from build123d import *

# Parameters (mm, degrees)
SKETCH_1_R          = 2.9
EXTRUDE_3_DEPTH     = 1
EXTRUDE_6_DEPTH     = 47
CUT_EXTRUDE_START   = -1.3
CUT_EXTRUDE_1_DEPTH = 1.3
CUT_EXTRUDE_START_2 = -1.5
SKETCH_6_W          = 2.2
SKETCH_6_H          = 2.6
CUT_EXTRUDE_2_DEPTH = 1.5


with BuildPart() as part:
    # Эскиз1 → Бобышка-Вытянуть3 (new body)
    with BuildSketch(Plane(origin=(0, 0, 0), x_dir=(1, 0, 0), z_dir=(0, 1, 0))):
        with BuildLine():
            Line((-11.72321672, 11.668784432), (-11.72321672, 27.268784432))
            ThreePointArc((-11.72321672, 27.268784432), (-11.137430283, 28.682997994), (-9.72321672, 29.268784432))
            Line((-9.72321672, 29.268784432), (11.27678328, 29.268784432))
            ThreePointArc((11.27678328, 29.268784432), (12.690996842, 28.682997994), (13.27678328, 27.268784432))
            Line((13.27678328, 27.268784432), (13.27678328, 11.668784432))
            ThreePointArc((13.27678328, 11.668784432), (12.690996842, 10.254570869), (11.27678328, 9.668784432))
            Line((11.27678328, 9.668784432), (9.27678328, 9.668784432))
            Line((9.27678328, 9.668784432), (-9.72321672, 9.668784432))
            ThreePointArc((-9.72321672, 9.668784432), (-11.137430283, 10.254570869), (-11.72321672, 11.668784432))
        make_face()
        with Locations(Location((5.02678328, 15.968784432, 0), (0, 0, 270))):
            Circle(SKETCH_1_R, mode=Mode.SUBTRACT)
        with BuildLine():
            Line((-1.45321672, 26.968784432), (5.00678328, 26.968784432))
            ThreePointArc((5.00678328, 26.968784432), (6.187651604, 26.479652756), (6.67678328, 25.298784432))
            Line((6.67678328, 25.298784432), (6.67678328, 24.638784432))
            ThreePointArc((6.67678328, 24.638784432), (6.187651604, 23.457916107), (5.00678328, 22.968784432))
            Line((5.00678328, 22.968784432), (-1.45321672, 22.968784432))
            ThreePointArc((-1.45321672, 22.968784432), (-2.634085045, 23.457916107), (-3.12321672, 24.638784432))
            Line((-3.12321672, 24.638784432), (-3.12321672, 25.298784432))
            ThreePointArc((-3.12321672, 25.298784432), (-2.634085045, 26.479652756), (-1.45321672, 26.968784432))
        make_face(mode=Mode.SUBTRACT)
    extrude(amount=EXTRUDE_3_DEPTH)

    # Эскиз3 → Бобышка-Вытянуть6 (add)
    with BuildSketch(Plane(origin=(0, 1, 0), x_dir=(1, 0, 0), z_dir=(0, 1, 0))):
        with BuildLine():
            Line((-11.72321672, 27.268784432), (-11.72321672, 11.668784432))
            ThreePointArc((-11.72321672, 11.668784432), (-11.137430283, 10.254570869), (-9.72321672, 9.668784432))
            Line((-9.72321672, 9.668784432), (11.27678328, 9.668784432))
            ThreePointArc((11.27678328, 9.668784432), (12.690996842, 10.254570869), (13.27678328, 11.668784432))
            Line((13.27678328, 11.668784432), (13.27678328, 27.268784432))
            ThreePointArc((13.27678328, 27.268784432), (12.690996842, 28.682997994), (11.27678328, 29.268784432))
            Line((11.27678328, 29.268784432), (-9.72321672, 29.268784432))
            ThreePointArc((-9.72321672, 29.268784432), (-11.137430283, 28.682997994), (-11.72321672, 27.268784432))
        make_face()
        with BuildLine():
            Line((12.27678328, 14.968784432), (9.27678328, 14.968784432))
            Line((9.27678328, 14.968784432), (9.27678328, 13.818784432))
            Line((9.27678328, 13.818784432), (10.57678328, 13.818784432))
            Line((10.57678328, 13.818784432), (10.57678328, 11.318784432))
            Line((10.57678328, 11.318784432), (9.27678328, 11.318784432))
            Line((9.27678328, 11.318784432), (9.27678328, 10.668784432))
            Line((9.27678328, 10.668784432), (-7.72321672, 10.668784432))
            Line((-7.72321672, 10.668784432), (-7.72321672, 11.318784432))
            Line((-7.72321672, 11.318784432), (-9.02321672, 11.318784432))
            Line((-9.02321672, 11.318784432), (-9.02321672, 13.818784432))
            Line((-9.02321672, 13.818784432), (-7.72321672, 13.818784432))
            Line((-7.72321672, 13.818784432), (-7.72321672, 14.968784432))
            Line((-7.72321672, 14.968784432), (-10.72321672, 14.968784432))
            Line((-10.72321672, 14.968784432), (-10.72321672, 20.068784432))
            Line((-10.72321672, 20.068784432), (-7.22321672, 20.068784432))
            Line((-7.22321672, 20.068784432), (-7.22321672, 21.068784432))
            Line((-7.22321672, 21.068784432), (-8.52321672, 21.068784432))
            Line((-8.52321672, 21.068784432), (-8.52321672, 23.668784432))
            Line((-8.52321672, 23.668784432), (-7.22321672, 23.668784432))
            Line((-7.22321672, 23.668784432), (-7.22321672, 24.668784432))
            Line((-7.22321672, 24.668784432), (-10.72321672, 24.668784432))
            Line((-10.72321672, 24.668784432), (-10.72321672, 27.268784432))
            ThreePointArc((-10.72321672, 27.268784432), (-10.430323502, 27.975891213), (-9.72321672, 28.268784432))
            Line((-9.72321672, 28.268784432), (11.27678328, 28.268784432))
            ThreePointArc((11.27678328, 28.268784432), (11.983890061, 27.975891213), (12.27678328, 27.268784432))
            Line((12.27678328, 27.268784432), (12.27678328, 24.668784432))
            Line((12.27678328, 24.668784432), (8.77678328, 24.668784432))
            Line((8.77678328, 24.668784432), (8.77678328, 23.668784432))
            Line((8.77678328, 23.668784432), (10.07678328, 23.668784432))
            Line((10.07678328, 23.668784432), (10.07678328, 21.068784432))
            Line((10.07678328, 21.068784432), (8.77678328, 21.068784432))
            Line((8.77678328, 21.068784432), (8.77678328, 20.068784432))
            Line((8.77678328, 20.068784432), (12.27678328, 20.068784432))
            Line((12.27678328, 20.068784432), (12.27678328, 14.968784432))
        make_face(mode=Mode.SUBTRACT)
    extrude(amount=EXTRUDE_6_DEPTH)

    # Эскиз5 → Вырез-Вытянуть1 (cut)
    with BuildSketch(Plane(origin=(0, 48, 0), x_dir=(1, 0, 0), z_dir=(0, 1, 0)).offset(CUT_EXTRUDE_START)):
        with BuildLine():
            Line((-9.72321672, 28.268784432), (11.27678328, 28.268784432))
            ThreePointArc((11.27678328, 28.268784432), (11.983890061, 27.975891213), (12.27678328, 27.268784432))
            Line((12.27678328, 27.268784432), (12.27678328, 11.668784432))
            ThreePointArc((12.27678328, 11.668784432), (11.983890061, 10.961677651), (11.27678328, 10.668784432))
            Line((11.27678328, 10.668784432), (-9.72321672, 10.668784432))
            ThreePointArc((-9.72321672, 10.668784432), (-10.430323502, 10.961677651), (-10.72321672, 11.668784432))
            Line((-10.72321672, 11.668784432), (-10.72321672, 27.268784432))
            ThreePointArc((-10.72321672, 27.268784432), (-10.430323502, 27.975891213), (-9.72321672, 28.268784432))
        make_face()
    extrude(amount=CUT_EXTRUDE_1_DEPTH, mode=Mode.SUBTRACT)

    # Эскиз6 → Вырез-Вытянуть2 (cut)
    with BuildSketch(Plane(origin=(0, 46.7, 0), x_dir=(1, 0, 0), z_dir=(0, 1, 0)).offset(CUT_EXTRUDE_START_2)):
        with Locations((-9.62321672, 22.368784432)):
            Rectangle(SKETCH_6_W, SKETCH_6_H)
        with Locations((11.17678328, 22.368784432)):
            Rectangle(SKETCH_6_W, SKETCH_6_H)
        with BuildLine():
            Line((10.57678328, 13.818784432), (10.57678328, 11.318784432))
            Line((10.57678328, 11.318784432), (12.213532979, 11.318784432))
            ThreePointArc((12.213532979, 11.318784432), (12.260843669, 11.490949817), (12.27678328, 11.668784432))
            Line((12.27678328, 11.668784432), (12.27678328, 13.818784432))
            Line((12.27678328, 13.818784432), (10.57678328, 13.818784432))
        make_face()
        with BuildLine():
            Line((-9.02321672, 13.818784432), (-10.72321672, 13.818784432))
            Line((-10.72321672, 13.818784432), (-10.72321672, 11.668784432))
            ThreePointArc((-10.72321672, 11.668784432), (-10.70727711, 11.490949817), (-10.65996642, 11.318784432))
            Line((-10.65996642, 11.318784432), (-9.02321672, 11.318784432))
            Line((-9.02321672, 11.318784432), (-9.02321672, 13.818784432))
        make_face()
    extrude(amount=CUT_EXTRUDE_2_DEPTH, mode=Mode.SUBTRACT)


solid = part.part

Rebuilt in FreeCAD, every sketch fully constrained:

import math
import FreeCAD as App
import Part
import Sketcher

doc = App.newDocument("Part")
params = doc.addObject("Spreadsheet::Sheet", "Params")
for row, (alias, value) in enumerate([
    ("sketch1_radius", "2 mm"),
    ("sketch1_diameter", "5.8 mm"),
    ("sketch1_width", "21 mm"),
    ("sketch1_radius2", "1.67 mm"),
    ("sketch1_height", "15.6 mm"),
    ("pad1_length", "1 mm"),
    ("sketch2_radius", "2 mm"),
    ("sketch2_radius2", "1 mm"),
    ("sketch2_width", "21 mm"),
    ("sketch2_width2", "3 mm"),
    ("sketch2_height", "1 mm"),
    ("pad2_length", "47 mm"),
    ("sketch3_radius", "1 mm"),
    ("sketch3_width", "21 mm"),
    ("sketch3_height", "15.6 mm"),
    ("pocket1_length", "1.3 mm"),
    ("sketch4_radius", "1 mm"),
    ("sketch4_width", "2.2 mm"),
    ("sketch4_width2", "1.7 mm"),
    ("sketch4_height", "2.6 mm"),
    ("sketch4_height2", "2.5 mm"),
    ("pocket2_length", "1.5 mm"),
], start=1):
    params.set(f"A{row}", alias)
    params.set(f"B{row}", "=" + value)
    params.setAlias(f"B{row}", alias)

body = doc.addObject("PartDesign::Body", "Body")

sketch1 = doc.addObject("Sketcher::SketchObject", "Sketch")
body.addObject(sketch1)
sketch1.AttachmentSupport = (doc.XZ_Plane, [""])
sketch1.MapMode = "FlatFace"
sketch1.addGeometry([
    Part.LineSegment(App.Vector(-11.723217, -27.268784, 0), App.Vector(-11.723217, -11.668784, 0)),
    Part.ArcOfCircle(Part.Circle(App.Vector(-9.723217, -11.668784, 0), App.Vector(0, 0, 1), 2), math.radians(90), math.radians(180)),
    Part.LineSegment(App.Vector(-9.723217, -9.668784, 0), App.Vector(11.276783, -9.668784, 0)),
    Part.ArcOfCircle(Part.Circle(App.Vector(11.276783, -11.668784, 0), App.Vector(0, 0, 1), 2), math.radians(0), math.radians(90)),
    Part.LineSegment(App.Vector(13.276783, -11.668784, 0), App.Vector(13.276783, -27.268784, 0)),
    Part.ArcOfCircle(Part.Circle(App.Vector(11.276783, -27.268784, 0), App.Vector(0, 0, 1), 2), math.radians(-90), math.radians(0)),
    Part.LineSegment(App.Vector(11.276783, -29.268784, 0), App.Vector(-9.723217, -29.268784, 0)),
    Part.ArcOfCircle(Part.Circle(App.Vector(-9.723217, -27.268784, 0), App.Vector(0, 0, 1), 2), math.radians(180), math.radians(270)),
    Part.Circle(App.Vector(5.026783, -15.968784, 0), App.Vector(0, 0, 1), 2.9),
    Part.LineSegment(App.Vector(-1.453217, -26.968784, 0), App.Vector(5.006783, -26.968784, 0)),
    Part.ArcOfCircle(Part.Circle(App.Vector(5.006783, -25.298784, 0), App.Vector(0, 0, 1), 1.67), math.radians(-90), math.radians(0)),
    Part.LineSegment(App.Vector(6.676783, -25.298784, 0), App.Vector(6.676783, -24.638784, 0)),
    Part.ArcOfCircle(Part.Circle(App.Vector(5.006783, -24.638784, 0), App.Vector(0, 0, 1), 1.67), math.radians(0), math.radians(90)),
    Part.LineSegment(App.Vector(5.006783, -22.968784, 0), App.Vector(-1.453217, -22.968784, 0)),
    Part.ArcOfCircle(Part.Circle(App.Vector(-1.453217, -24.638784, 0), App.Vector(0, 0, 1), 1.67), math.radians(90), math.radians(180)),
    Part.LineSegment(App.Vector(-3.123217, -24.638784, 0), App.Vector(-3.123217, -25.298784, 0)),
    Part.ArcOfCircle(Part.Circle(App.Vector(-1.453217, -25.298784, 0), App.Vector(0, 0, 1), 1.67), math.radians(180), math.radians(270)),
], False)
sketch1.addConstraint([
    Sketcher.Constraint("Tangent", 0, 2, 1, 2),
    Sketcher.Constraint("Tangent", 1, 1, 2, 1),
    Sketcher.Constraint("Tangent", 2, 2, 3, 2),
    Sketcher.Constraint("Tangent", 3, 1, 4, 1),
    Sketcher.Constraint("Tangent", 4, 2, 5, 2),
    Sketcher.Constraint("Tangent", 5, 1, 6, 1),
    Sketcher.Constraint("Tangent", 6, 2, 7, 2),
    Sketcher.Constraint("Tangent", 7, 1, 0, 1),
    Sketcher.Constraint("Tangent", 9, 2, 10, 1),
    Sketcher.Constraint("Tangent", 10, 2, 11, 1),
    Sketcher.Constraint("Tangent", 11, 2, 12, 1),
    Sketcher.Constraint("Tangent", 12, 2, 13, 1),
    Sketcher.Constraint("Tangent", 13, 2, 14, 1),
    Sketcher.Constraint("Tangent", 14, 2, 15, 1),
    Sketcher.Constraint("Tangent", 15, 2, 16, 1),
    Sketcher.Constraint("Tangent", 16, 2, 9, 1),
    Sketcher.Constraint("Vertical", 0),
    Sketcher.Constraint("Horizontal", 2),
    Sketcher.Constraint("Vertical", 4),
    Sketcher.Constraint("Horizontal", 6),
    Sketcher.Constraint("Horizontal", 9),
    Sketcher.Constraint("Vertical", 11),
    Sketcher.Constraint("Horizontal", 13),
    Sketcher.Constraint("Vertical", 15),
    Sketcher.Constraint("Equal", 1, 3),
    Sketcher.Constraint("Equal", 3, 5),
    Sketcher.Constraint("Equal", 5, 7),
    Sketcher.Constraint("Equal", 10, 12),
    Sketcher.Constraint("Equal", 12, 14),
    Sketcher.Constraint("Equal", 14, 16),
    Sketcher.Constraint("Radius", 1, 2.0),
    Sketcher.Constraint("Diameter", 8, 5.8),
    Sketcher.Constraint("DistanceX", 2, 1, 2, 2, 21.0),
    Sketcher.Constraint("Radius", 10, 1.67),
    Sketcher.Constraint("DistanceY", 0, 1, 0, 2, 15.6),
    Sketcher.Constraint("DistanceY", 9, 2, 12, 2, 4.0),
    Sketcher.Constraint("DistanceX", 9, 1, 9, 2, 6.46),
    Sketcher.Constraint("DistanceY", 8, 3, 3, 3, 4.3),
    Sketcher.Constraint("DistanceY", 5, 3, 9, 2, 0.3),
    Sketcher.Constraint("DistanceX", 10, 2, 5, 3, 4.6),
    Sketcher.Constraint("DistanceX", 8, 3, 3, 3, 6.25),
    Sketcher.Constraint("DistanceX", 1, 3, -1, 1, 9.723217),
    Sketcher.Constraint("DistanceY", 1, 3, -1, 1, 11.668784),
])
sketch1.setExpression("Constraints[30]", "Params.sketch1_radius")
sketch1.setExpression("Constraints[31]", "Params.sketch1_diameter")
sketch1.setExpression("Constraints[32]", "Params.sketch1_width")
sketch1.setExpression("Constraints[33]", "Params.sketch1_radius2")
sketch1.setExpression("Constraints[34]", "Params.sketch1_height")
pad1 = doc.addObject("PartDesign::Pad", "Pad")
body.addObject(pad1)
pad1.Profile = sketch1
pad1.setExpression("Length", "Params.pad1_length")
pad1.Reversed = True

sketch2 = doc.addObject("Sketcher::SketchObject", "Sketch001")
body.addObject(sketch2)
sketch2.AttachmentSupport = (doc.XZ_Plane, [""])
sketch2.MapMode = "FlatFace"
sketch2.AttachmentOffset = App.Placement(App.Vector(0, 0, -1), App.Rotation())
sketch2.addGeometry([
    Part.LineSegment(App.Vector(-11.723217, -27.268784, 0), App.Vector(-11.723217, -11.668784, 0)),
    Part.ArcOfCircle(Part.Circle(App.Vector(-9.723217, -11.668784, 0), App.Vector(0, 0, 1), 2), math.radians(90), math.radians(180)),
    Part.LineSegment(App.Vector(-9.723217, -9.668784, 0), App.Vector(11.276783, -9.668784, 0)),
    Part.ArcOfCircle(Part.Circle(App.Vector(11.276783, -11.668784, 0), App.Vector(0, 0, 1), 2), math.radians(0), math.radians(90)),
    Part.LineSegment(App.Vector(13.276783, -11.668784, 0), App.Vector(13.276783, -27.268784, 0)),
    Part.ArcOfCircle(Part.Circle(App.Vector(11.276783, -27.268784, 0), App.Vector(0, 0, 1), 2), math.radians(-90), math.radians(0)),
    Part.LineSegment(App.Vector(11.276783, -29.268784, 0), App.Vector(-9.723217, -29.268784, 0)),
    Part.ArcOfCircle(Part.Circle(App.Vector(-9.723217, -27.268784, 0), App.Vector(0, 0, 1), 2), math.radians(180), math.radians(270)),
    Part.LineSegment(App.Vector(12.276783, -20.068784, 0), App.Vector(12.276783, -14.968784, 0)),
    Part.LineSegment(App.Vector(12.276783, -14.968784, 0), App.Vector(9.276783, -14.968784, 0)),
    Part.LineSegment(App.Vector(9.276783, -14.968784, 0), App.Vector(9.276783, -13.818784, 0)),
    Part.LineSegment(App.Vector(9.276783, -13.818784, 0), App.Vector(10.576783, -13.818784, 0)),
    Part.LineSegment(App.Vector(10.576783, -13.818784, 0), App.Vector(10.576783, -11.318784, 0)),
    Part.LineSegment(App.Vector(10.576783, -11.318784, 0), App.Vector(9.276783, -11.318784, 0)),
    Part.LineSegment(App.Vector(9.276783, -11.318784, 0), App.Vector(9.276783, -10.668784, 0)),
    Part.LineSegment(App.Vector(9.276783, -10.668784, 0), App.Vector(-7.723217, -10.668784, 0)),
    Part.LineSegment(App.Vector(-7.723217, -10.668784, 0), App.Vector(-7.723217, -11.318784, 0)),
    Part.LineSegment(App.Vector(-7.723217, -11.318784, 0), App.Vector(-9.023217, -11.318784, 0)),
    Part.LineSegment(App.Vector(-9.023217, -11.318784, 0), App.Vector(-9.023217, -13.818784, 0)),
    Part.LineSegment(App.Vector(-9.023217, -13.818784, 0), App.Vector(-7.723217, -13.818784, 0)),
    Part.LineSegment(App.Vector(-7.723217, -13.818784, 0), App.Vector(-7.723217, -14.968784, 0)),
    Part.LineSegment(App.Vector(-7.723217, -14.968784, 0), App.Vector(-10.723217, -14.968784, 0)),
    Part.LineSegment(App.Vector(-10.723217, -14.968784, 0), App.Vector(-10.723217, -20.068784, 0)),
    Part.LineSegment(App.Vector(-10.723217, -20.068784, 0), App.Vector(-7.223217, -20.068784, 0)),
    Part.LineSegment(App.Vector(-7.223217, -20.068784, 0), App.Vector(-7.223217, -21.068784, 0)),
    Part.LineSegment(App.Vector(-7.223217, -21.068784, 0), App.Vector(-8.523217, -21.068784, 0)),
    Part.LineSegment(App.Vector(-8.523217, -21.068784, 0), App.Vector(-8.523217, -23.668784, 0)),
    Part.LineSegment(App.Vector(-8.523217, -23.668784, 0), App.Vector(-7.223217, -23.668784, 0)),
    Part.LineSegment(App.Vector(-7.223217, -23.668784, 0), App.Vector(-7.223217, -24.668784, 0)),
    Part.LineSegment(App.Vector(-7.223217, -24.668784, 0), App.Vector(-10.723217, -24.668784, 0)),
    Part.LineSegment(App.Vector(-10.723217, -24.668784, 0), App.Vector(-10.723217, -27.268784, 0)),
    Part.ArcOfCircle(Part.Circle(App.Vector(-9.723217, -27.268784, 0), App.Vector(0, 0, 1), 1), math.radians(180), math.radians(270)),
    Part.LineSegment(App.Vector(-9.723217, -28.268784, 0), App.Vector(11.276783, -28.268784, 0)),
    Part.ArcOfCircle(Part.Circle(App.Vector(11.276783, -27.268784, 0), App.Vector(0, 0, 1), 1), math.radians(-90), math.radians(0)),
    Part.LineSegment(App.Vector(12.276783, -27.268784, 0), App.Vector(12.276783, -24.668784, 0)),
    Part.LineSegment(App.Vector(12.276783, -24.668784, 0), App.Vector(8.776783, -24.668784, 0)),
    Part.LineSegment(App.Vector(8.776783, -24.668784, 0), App.Vector(8.776783, -23.668784, 0)),
    Part.LineSegment(App.Vector(8.776783, -23.668784, 0), App.Vector(10.076783, -23.668784, 0)),
    Part.LineSegment(App.Vector(10.076783, -23.668784, 0), App.Vector(10.076783, -21.068784, 0)),
    Part.LineSegment(App.Vector(10.076783, -21.068784, 0), App.Vector(8.776783, -21.068784, 0)),
    Part.LineSegment(App.Vector(8.776783, -21.068784, 0), App.Vector(8.776783, -20.068784, 0)),
    Part.LineSegment(App.Vector(8.776783, -20.068784, 0), App.Vector(12.276783, -20.068784, 0)),
], False)
sketch2.addConstraint([
    Sketcher.Constraint("Tangent", 0, 2, 1, 2),
    Sketcher.Constraint("Tangent", 1, 1, 2, 1),
    Sketcher.Constraint("Tangent", 2, 2, 3, 2),
    Sketcher.Constraint("Tangent", 3, 1, 4, 1),
    Sketcher.Constraint("Tangent", 4, 2, 5, 2),
    Sketcher.Constraint("Tangent", 5, 1, 6, 1),
    Sketcher.Constraint("Tangent", 6, 2, 7, 2),
    Sketcher.Constraint("Tangent", 7, 1, 0, 1),
    Sketcher.Constraint("Coincident", 8, 2, 9, 1),
    Sketcher.Constraint("Coincident", 9, 2, 10, 1),
    Sketcher.Constraint("Coincident", 10, 2, 11, 1),
    Sketcher.Constraint("Coincident", 11, 2, 12, 1),
    Sketcher.Constraint("Coincident", 12, 2, 13, 1),
    Sketcher.Constraint("Coincident", 13, 2, 14, 1),
    Sketcher.Constraint("Coincident", 14, 2, 15, 1),
    Sketcher.Constraint("Coincident", 15, 2, 16, 1),
    Sketcher.Constraint("Coincident", 16, 2, 17, 1),
    Sketcher.Constraint("Coincident", 17, 2, 18, 1),
    Sketcher.Constraint("Coincident", 18, 2, 19, 1),
    Sketcher.Constraint("Coincident", 19, 2, 20, 1),
    Sketcher.Constraint("Coincident", 20, 2, 21, 1),
    Sketcher.Constraint("Coincident", 21, 2, 22, 1),
    Sketcher.Constraint("Coincident", 22, 2, 23, 1),
    Sketcher.Constraint("Coincident", 23, 2, 24, 1),
    Sketcher.Constraint("Coincident", 24, 2, 25, 1),
    Sketcher.Constraint("Coincident", 25, 2, 26, 1),
    Sketcher.Constraint("Coincident", 26, 2, 27, 1),
    Sketcher.Constraint("Coincident", 27, 2, 28, 1),
    Sketcher.Constraint("Coincident", 28, 2, 29, 1),
    Sketcher.Constraint("Coincident", 29, 2, 30, 1),
    Sketcher.Constraint("Tangent", 30, 2, 31, 1),
    Sketcher.Constraint("Tangent", 31, 2, 32, 1),
    Sketcher.Constraint("Tangent", 32, 2, 33, 1),
    Sketcher.Constraint("Tangent", 33, 2, 34, 1),
    Sketcher.Constraint("Coincident", 34, 2, 35, 1),
    Sketcher.Constraint("Coincident", 35, 2, 36, 1),
    Sketcher.Constraint("Coincident", 36, 2, 37, 1),
    Sketcher.Constraint("Coincident", 37, 2, 38, 1),
    Sketcher.Constraint("Coincident", 38, 2, 39, 1),
    Sketcher.Constraint("Coincident", 39, 2, 40, 1),
    Sketcher.Constraint("Coincident", 40, 2, 41, 1),
    Sketcher.Constraint("Coincident", 41, 2, 8, 1),
    Sketcher.Constraint("Vertical", 0),
    Sketcher.Constraint("Horizontal", 2),
    Sketcher.Constraint("Vertical", 4),
    Sketcher.Constraint("Horizontal", 6),
    Sketcher.Constraint("Vertical", 8),
    Sketcher.Constraint("Horizontal", 9),
    Sketcher.Constraint("Vertical", 10),
    Sketcher.Constraint("Horizontal", 11),
    Sketcher.Constraint("Vertical", 12),
    Sketcher.Constraint("Horizontal", 13),
    Sketcher.Constraint("Vertical", 14),
    Sketcher.Constraint("Horizontal", 15),
    Sketcher.Constraint("Vertical", 16),
    Sketcher.Constraint("Horizontal", 17),
    Sketcher.Constraint("Vertical", 18),
    Sketcher.Constraint("Horizontal", 19),
    Sketcher.Constraint("Vertical", 20),
    Sketcher.Constraint("Horizontal", 21),
    Sketcher.Constraint("Vertical", 22),
    Sketcher.Constraint("Horizontal", 23),
    Sketcher.Constraint("Vertical", 24),
    Sketcher.Constraint("Horizontal", 25),
    Sketcher.Constraint("Vertical", 26),
    Sketcher.Constraint("Horizontal", 27),
    Sketcher.Constraint("Vertical", 28),
    Sketcher.Constraint("Horizontal", 29),
    Sketcher.Constraint("Vertical", 30),
    Sketcher.Constraint("Horizontal", 32),
    Sketcher.Constraint("Vertical", 34),
    Sketcher.Constraint("Horizontal", 35),
    Sketcher.Constraint("Vertical", 36),
    Sketcher.Constraint("Horizontal", 37),
    Sketcher.Constraint("Vertical", 38),
    Sketcher.Constraint("Horizontal", 39),
    Sketcher.Constraint("Vertical", 40),
    Sketcher.Constraint("Horizontal", 41),
    Sketcher.Constraint("Coincident", 31, 3, 7, 3),
    Sketcher.Constraint("Coincident", 33, 3, 5, 3),
    Sketcher.Constraint("Equal", 1, 3),
    Sketcher.Constraint("Equal", 3, 5),
    Sketcher.Constraint("Equal", 5, 7),
    Sketcher.Constraint("Horizontal", 13, 2, 16, 2),
    Sketcher.Constraint("Horizontal", 11, 2, 18, 2),
    Sketcher.Constraint("Horizontal", 9, 2, 20, 2),
    Sketcher.Constraint("Horizontal", 29, 2, 34, 2),
    Sketcher.Constraint("Horizontal", 27, 2, 36, 2),
    Sketcher.Constraint("Horizontal", 25, 2, 38, 2),
    Sketcher.Constraint("Horizontal", 23, 2, 40, 2),
    Sketcher.Constraint("Vertical", 10, 2, 13, 2),
    Sketcher.Constraint("Vertical", 16, 2, 19, 2),
    Sketcher.Constraint("Vertical", 24, 2, 27, 2),
    Sketcher.Constraint("Vertical", 22, 2, 29, 2),
    Sketcher.Constraint("Vertical", 8, 2, 33, 2),
    Sketcher.Constraint("Vertical", 36, 2, 39, 2),
    Sketcher.Constraint("Equal", 13, 17),
    Sketcher.Constraint("Equal", 9, 21),
    Sketcher.Constraint("Equal", 19, 25),
    Sketcher.Constraint("Equal", 29, 35),
    Sketcher.Constraint("Equal", 27, 37),
    Sketcher.Constraint("Equal", 24, 28),
    Sketcher.Constraint("Equal", 26, 30),
    Sketcher.Constraint("Radius", 1, 2.0),
    Sketcher.Constraint("Radius", 31, 1.0),
    Sketcher.Constraint("DistanceX", 2, 1, 2, 2, 21.0),
    Sketcher.Constraint("DistanceX", 9, 2, 9, 1, 3.0),
    Sketcher.Constraint("DistanceY", 24, 2, 24, 1, 1.0),
    Sketcher.Constraint("DistanceX", 11, 1, 11, 2, 1.3),
    Sketcher.Constraint("DistanceX", 23, 1, 23, 2, 3.5),
    Sketcher.Constraint("DistanceY", 0, 1, 0, 2, 15.6),
    Sketcher.Constraint("DistanceY", 8, 1, 8, 2, 5.1),
    Sketcher.Constraint("DistanceY", 12, 1, 12, 2, 2.5),
    Sketcher.Constraint("DistanceY", 26, 2, 26, 1, 2.6),
    Sketcher.Constraint("DistanceY", 3, 3, 14, 2, 1.0),
    Sketcher.Constraint("DistanceY", 10, 1, 10, 2, 1.15),
    Sketcher.Constraint("DistanceX", 1, 3, -1, 1, 9.723217),
    Sketcher.Constraint("DistanceY", 1, 3, -1, 1, 11.668784),
])
sketch2.setExpression("Constraints[103]", "Params.sketch2_radius")
sketch2.setExpression("Constraints[104]", "Params.sketch2_radius2")
sketch2.setExpression("Constraints[105]", "Params.sketch2_width")
sketch2.setExpression("Constraints[106]", "Params.sketch2_width2")
sketch2.setExpression("Constraints[107]", "Params.sketch2_height")
pad2 = doc.addObject("PartDesign::Pad", "Pad001")
body.addObject(pad2)
pad2.Profile = sketch2
pad2.setExpression("Length", "Params.pad2_length")
pad2.Reversed = True

sketch3 = doc.addObject("Sketcher::SketchObject", "Sketch002")
body.addObject(sketch3)
sketch3.AttachmentSupport = (doc.XZ_Plane, [""])
sketch3.MapMode = "FlatFace"
sketch3.AttachmentOffset = App.Placement(App.Vector(0, 0, -46.7), App.Rotation())
sketch3.addGeometry([
    Part.LineSegment(App.Vector(11.276783, -28.268784, 0), App.Vector(-9.723217, -28.268784, 0)),
    Part.ArcOfCircle(Part.Circle(App.Vector(-9.723217, -27.268784, 0), App.Vector(0, 0, 1), 1), math.radians(180), math.radians(270)),
    Part.LineSegment(App.Vector(-10.723217, -27.268784, 0), App.Vector(-10.723217, -11.668784, 0)),
    Part.ArcOfCircle(Part.Circle(App.Vector(-9.723217, -11.668784, 0), App.Vector(0, 0, 1), 1), math.radians(90), math.radians(180)),
    Part.LineSegment(App.Vector(-9.723217, -10.668784, 0), App.Vector(11.276783, -10.668784, 0)),
    Part.ArcOfCircle(Part.Circle(App.Vector(11.276783, -11.668784, 0), App.Vector(0, 0, 1), 1), math.radians(0), math.radians(90)),
    Part.LineSegment(App.Vector(12.276783, -11.668784, 0), App.Vector(12.276783, -27.268784, 0)),
    Part.ArcOfCircle(Part.Circle(App.Vector(11.276783, -27.268784, 0), App.Vector(0, 0, 1), 1), math.radians(-90), math.radians(0)),
], False)
sketch3.addConstraint([
    Sketcher.Constraint("Tangent", 0, 2, 1, 2),
    Sketcher.Constraint("Tangent", 1, 1, 2, 1),
    Sketcher.Constraint("Tangent", 2, 2, 3, 2),
    Sketcher.Constraint("Tangent", 3, 1, 4, 1),
    Sketcher.Constraint("Tangent", 4, 2, 5, 2),
    Sketcher.Constraint("Tangent", 5, 1, 6, 1),
    Sketcher.Constraint("Tangent", 6, 2, 7, 2),
    Sketcher.Constraint("Tangent", 7, 1, 0, 1),
    Sketcher.Constraint("Horizontal", 0),
    Sketcher.Constraint("Vertical", 2),
    Sketcher.Constraint("Horizontal", 4),
    Sketcher.Constraint("Vertical", 6),
    Sketcher.Constraint("Equal", 1, 3),
    Sketcher.Constraint("Equal", 3, 5),
    Sketcher.Constraint("Equal", 5, 7),
    Sketcher.Constraint("Radius", 1, 1.0),
    Sketcher.Constraint("DistanceX", 0, 2, 0, 1, 21.0),
    Sketcher.Constraint("DistanceY", 2, 1, 2, 2, 15.6),
    Sketcher.Constraint("DistanceX", 1, 3, -1, 1, 9.723217),
    Sketcher.Constraint("DistanceY", 1, 3, -1, 1, 27.268784),
])
sketch3.setExpression("Constraints[15]", "Params.sketch3_radius")
sketch3.setExpression("Constraints[16]", "Params.sketch3_width")
sketch3.setExpression("Constraints[17]", "Params.sketch3_height")
pocket1 = doc.addObject("PartDesign::Pocket", "Pocket")
body.addObject(pocket1)
pocket1.Profile = sketch3
pocket1.setExpression("Length", "Params.pocket1_length")

sketch4 = doc.addObject("Sketcher::SketchObject", "Sketch003")
body.addObject(sketch4)
sketch4.AttachmentSupport = (doc.XZ_Plane, [""])
sketch4.MapMode = "FlatFace"
sketch4.AttachmentOffset = App.Placement(App.Vector(0, 0, -45.2), App.Rotation())
sketch4.addGeometry([
    Part.LineSegment(App.Vector(-10.723217, -23.668784, 0), App.Vector(-10.723217, -21.068784, 0)),
    Part.LineSegment(App.Vector(-10.723217, -21.068784, 0), App.Vector(-8.523217, -21.068784, 0)),
    Part.LineSegment(App.Vector(-8.523217, -21.068784, 0), App.Vector(-8.523217, -23.668784, 0)),
    Part.LineSegment(App.Vector(-8.523217, -23.668784, 0), App.Vector(-10.723217, -23.668784, 0)),
    Part.LineSegment(App.Vector(10.076783, -23.668784, 0), App.Vector(10.076783, -21.068784, 0)),
    Part.LineSegment(App.Vector(10.076783, -21.068784, 0), App.Vector(12.276783, -21.068784, 0)),
    Part.LineSegment(App.Vector(12.276783, -21.068784, 0), App.Vector(12.276783, -23.668784, 0)),
    Part.LineSegment(App.Vector(12.276783, -23.668784, 0), App.Vector(10.076783, -23.668784, 0)),
    Part.LineSegment(App.Vector(10.576783, -13.818784, 0), App.Vector(10.576783, -11.318784, 0)),
    Part.LineSegment(App.Vector(10.576783, -11.318784, 0), App.Vector(12.213533, -11.318784, 0)),
    Part.ArcOfCircle(Part.Circle(App.Vector(11.276783, -11.668784, 0), App.Vector(0, 0, 1), 1), math.radians(0), math.radians(20.487315)),
    Part.LineSegment(App.Vector(12.276783, -11.668784, 0), App.Vector(12.276783, -13.818784, 0)),
    Part.LineSegment(App.Vector(12.276783, -13.818784, 0), App.Vector(10.576783, -13.818784, 0)),
    Part.LineSegment(App.Vector(-9.023217, -13.818784, 0), App.Vector(-10.723217, -13.818784, 0)),
    Part.LineSegment(App.Vector(-10.723217, -13.818784, 0), App.Vector(-10.723217, -11.668784, 0)),
    Part.ArcOfCircle(Part.Circle(App.Vector(-9.723217, -11.668784, 0), App.Vector(0, 0, 1), 1), math.radians(159.512685), math.radians(180)),
    Part.LineSegment(App.Vector(-10.659966, -11.318784, 0), App.Vector(-9.023217, -11.318784, 0)),
    Part.LineSegment(App.Vector(-9.023217, -11.318784, 0), App.Vector(-9.023217, -13.818784, 0)),
], False)
sketch4.addConstraint([
    Sketcher.Constraint("Coincident", 0, 2, 1, 1),
    Sketcher.Constraint("Coincident", 1, 2, 2, 1),
    Sketcher.Constraint("Coincident", 2, 2, 3, 1),
    Sketcher.Constraint("Coincident", 3, 2, 0, 1),
    Sketcher.Constraint("Coincident", 4, 2, 5, 1),
    Sketcher.Constraint("Coincident", 5, 2, 6, 1),
    Sketcher.Constraint("Coincident", 6, 2, 7, 1),
    Sketcher.Constraint("Coincident", 7, 2, 4, 1),
    Sketcher.Constraint("Coincident", 8, 2, 9, 1),
    Sketcher.Constraint("Coincident", 9, 2, 10, 2),
    Sketcher.Constraint("Tangent", 10, 1, 11, 1),
    Sketcher.Constraint("Coincident", 11, 2, 12, 1),
    Sketcher.Constraint("Coincident", 12, 2, 8, 1),
    Sketcher.Constraint("Coincident", 13, 2, 14, 1),
    Sketcher.Constraint("Tangent", 14, 2, 15, 2),
    Sketcher.Constraint("Coincident", 15, 1, 16, 1),
    Sketcher.Constraint("Coincident", 16, 2, 17, 1),
    Sketcher.Constraint("Coincident", 17, 2, 13, 1),
    Sketcher.Constraint("Vertical", 0),
    Sketcher.Constraint("Horizontal", 1),
    Sketcher.Constraint("Vertical", 2),
    Sketcher.Constraint("Horizontal", 3),
    Sketcher.Constraint("Vertical", 4),
    Sketcher.Constraint("Horizontal", 5),
    Sketcher.Constraint("Vertical", 6),
    Sketcher.Constraint("Horizontal", 7),
    Sketcher.Constraint("Vertical", 8),
    Sketcher.Constraint("Horizontal", 9),
    Sketcher.Constraint("Vertical", 11),
    Sketcher.Constraint("Horizontal", 12),
    Sketcher.Constraint("Horizontal", 13),
    Sketcher.Constraint("Vertical", 14),
    Sketcher.Constraint("Horizontal", 16),
    Sketcher.Constraint("Vertical", 17),
    Sketcher.Constraint("Equal", 10, 15),
    Sketcher.Constraint("Horizontal", 10, 3, 15, 3),
    Sketcher.Constraint("Horizontal", 1, 2, 4, 2),
    Sketcher.Constraint("Horizontal", 3, 2, 6, 2),
    Sketcher.Constraint("Horizontal", 12, 2, 13, 2),
    Sketcher.Constraint("Horizontal", 9, 2, 15, 1),
    Sketcher.Constraint("Vertical", 6, 2, 10, 1),
    Sketcher.Constraint("Vertical", 3, 2, 13, 2),
    Sketcher.Constraint("Equal", 3, 5),
    Sketcher.Constraint("Equal", 12, 13),
    Sketcher.Constraint("Radius", 10, 1.0),
    Sketcher.Constraint("DistanceX", 1, 1, 1, 2, 2.2),
    Sketcher.Constraint("DistanceX", 12, 2, 12, 1, 1.7),
    Sketcher.Constraint("DistanceY", 0, 1, 0, 2, 2.6),
    Sketcher.Constraint("DistanceY", 8, 1, 8, 2, 2.5),
    Sketcher.Constraint("DistanceX", 15, 3, 10, 3, 21.0),
    Sketcher.Constraint("DistanceY", 2, 2, 15, 3, 12.0),
    Sketcher.Constraint("DistanceY", 11, 2, 11, 1, 2.15),
    Sketcher.Constraint("DistanceX", -1, 1, 10, 3, 11.276783),
    Sketcher.Constraint("DistanceY", 10, 3, -1, 1, 11.668784),
])
sketch4.setExpression("Constraints[44]", "Params.sketch4_radius")
sketch4.setExpression("Constraints[45]", "Params.sketch4_width")
sketch4.setExpression("Constraints[46]", "Params.sketch4_width2")
sketch4.setExpression("Constraints[47]", "Params.sketch4_height")
sketch4.setExpression("Constraints[48]", "Params.sketch4_height2")
pocket2 = doc.addObject("PartDesign::Pocket", "Pocket001")
body.addObject(pocket2)
pocket2.Profile = sketch4
pocket2.setExpression("Length", "Params.pocket2_length")

doc.recompute()
